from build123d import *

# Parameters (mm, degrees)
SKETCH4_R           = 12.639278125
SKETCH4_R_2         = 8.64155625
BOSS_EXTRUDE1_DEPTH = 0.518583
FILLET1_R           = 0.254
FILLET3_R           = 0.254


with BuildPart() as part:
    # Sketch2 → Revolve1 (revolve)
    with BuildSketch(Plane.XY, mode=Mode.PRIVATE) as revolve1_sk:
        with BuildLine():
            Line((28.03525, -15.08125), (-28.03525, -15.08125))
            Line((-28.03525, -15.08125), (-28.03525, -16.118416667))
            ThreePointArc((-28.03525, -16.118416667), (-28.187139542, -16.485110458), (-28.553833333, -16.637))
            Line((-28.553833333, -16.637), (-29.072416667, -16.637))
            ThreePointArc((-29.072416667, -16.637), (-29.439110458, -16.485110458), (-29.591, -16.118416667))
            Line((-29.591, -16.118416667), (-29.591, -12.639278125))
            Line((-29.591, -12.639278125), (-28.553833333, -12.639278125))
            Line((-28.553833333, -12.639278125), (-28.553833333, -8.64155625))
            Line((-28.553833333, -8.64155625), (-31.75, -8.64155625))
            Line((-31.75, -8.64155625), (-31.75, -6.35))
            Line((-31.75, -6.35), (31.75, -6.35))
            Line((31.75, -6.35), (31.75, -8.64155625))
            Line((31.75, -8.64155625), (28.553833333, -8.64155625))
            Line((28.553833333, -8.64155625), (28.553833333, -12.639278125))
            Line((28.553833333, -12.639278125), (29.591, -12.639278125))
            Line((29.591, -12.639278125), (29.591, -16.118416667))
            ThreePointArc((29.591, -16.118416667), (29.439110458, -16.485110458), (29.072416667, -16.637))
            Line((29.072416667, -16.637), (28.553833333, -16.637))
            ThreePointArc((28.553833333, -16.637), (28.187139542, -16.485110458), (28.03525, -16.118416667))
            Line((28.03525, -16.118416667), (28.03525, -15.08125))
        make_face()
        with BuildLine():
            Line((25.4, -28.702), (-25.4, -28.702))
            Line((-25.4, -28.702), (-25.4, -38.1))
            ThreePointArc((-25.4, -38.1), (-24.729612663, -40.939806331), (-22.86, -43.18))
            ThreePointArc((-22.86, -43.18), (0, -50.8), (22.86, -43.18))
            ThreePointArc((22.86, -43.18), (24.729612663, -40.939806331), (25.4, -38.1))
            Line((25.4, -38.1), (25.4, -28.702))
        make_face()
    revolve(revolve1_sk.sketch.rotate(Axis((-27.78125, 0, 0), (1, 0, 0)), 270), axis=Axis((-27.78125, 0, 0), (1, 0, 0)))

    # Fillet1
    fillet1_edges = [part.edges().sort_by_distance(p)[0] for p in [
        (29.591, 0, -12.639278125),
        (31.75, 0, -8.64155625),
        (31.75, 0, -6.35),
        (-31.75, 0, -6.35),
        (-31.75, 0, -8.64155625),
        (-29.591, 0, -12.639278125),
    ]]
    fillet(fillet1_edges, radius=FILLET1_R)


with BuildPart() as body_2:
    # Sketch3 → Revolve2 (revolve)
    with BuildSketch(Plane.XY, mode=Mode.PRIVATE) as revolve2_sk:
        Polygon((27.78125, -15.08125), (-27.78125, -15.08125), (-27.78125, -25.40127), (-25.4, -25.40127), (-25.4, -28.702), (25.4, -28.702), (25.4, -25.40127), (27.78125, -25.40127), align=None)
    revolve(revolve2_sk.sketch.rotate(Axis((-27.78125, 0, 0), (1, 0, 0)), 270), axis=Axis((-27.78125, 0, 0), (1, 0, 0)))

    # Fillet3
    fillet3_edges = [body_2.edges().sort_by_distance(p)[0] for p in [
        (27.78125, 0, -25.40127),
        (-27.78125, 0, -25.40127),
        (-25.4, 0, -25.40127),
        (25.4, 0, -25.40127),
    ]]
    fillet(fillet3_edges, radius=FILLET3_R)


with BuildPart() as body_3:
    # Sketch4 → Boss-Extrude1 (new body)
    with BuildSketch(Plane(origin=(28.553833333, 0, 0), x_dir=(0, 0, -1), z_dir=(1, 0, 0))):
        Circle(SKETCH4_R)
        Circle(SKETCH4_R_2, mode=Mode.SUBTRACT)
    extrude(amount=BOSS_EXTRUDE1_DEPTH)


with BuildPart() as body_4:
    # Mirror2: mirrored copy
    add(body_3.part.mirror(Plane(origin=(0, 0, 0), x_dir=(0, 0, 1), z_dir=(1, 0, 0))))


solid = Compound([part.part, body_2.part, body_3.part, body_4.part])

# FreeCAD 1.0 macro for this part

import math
import FreeCAD as App
import Part
import Sketcher
from FreeCAD import Vector
Q = App.Units.Quantity


def edges_at(feature, points):
    """Names of the edges that pass closest to the given points."""
    edges = feature.Shape.Edges
    near = lambda p: min(range(len(edges)), key=lambda i: edges[i].distToShape(Part.Vertex(*p))[0])
    return sorted({f"Edge{near(p) + 1}" for p in points})


def add_polygon(sketch, points):
    """Adds a closed chain of lines whose ends are joined by coincident constraints."""
    first, n = sketch.GeometryCount, len(points)
    for a, b in zip(points, points[1:] + points[:1]):
        sketch.addGeometry(Part.LineSegment(App.Vector(*a, 0), App.Vector(*b, 0)), False)
    for i in range(n):
        sketch.addConstraint(Sketcher.Constraint("Coincident", first + i, 2, first + (i + 1) % n, 1))

doc = App.newDocument("Part")
body = doc.addObject("PartDesign::Body", "Body")
body.AllowCompound = True

# Sketch on XY plane
sketch1 = body.newObject("Sketcher::SketchObject", "Sketch")
sketch1.AttachmentSupport = (doc.getObject("XY_Plane"), [""])
sketch1.MapMode = "FlatFace"
sketch1.addGeometry([
    Part.LineSegment(Vector(-28, -15.1, 0), Vector(28, -15.1, 0)),  # 0
    Part.LineSegment(Vector(28, -15.1, 0), Vector(28, -16.1, 0)),  # 1
    Part.ArcOfCircle(Part.Circle(Vector(28.6, -16.1, 0), Vector(0, 0, 1), 0.5), math.radians(-180), math.radians(-90)),  # 2
    Part.LineSegment(Vector(28.6, -16.6, 0), Vector(29.1, -16.6, 0)),  # 3
    Part.ArcOfCircle(Part.Circle(Vector(29.1, -16.1, 0), Vector(0, 0, 1), 0.5), math.radians(-90), math.radians(0)),  # 4
    Part.LineSegment(Vector(29.6, -16.1, 0), Vector(29.6, -12.6, 0)),  # 5
    Part.LineSegment(Vector(29.6, -12.6, 0), Vector(28.6, -12.6, 0)),  # 6
    Part.LineSegment(Vector(28.6, -12.6, 0), Vector(28.6, -8.6, 0)),  # 7
    Part.LineSegment(Vector(28.6, -8.6, 0), Vector(31.8, -8.6, 0)),  # 8
    Part.LineSegment(Vector(31.8, -8.6, 0), Vector(31.8, -6.3, 0)),  # 9
    Part.LineSegment(Vector(31.8, -6.3, 0), Vector(-31.8, -6.3, 0)),  # 10
    Part.LineSegment(Vector(-31.8, -6.3, 0), Vector(-31.8, -8.6, 0)),  # 11
    Part.LineSegment(Vector(-31.8, -8.6, 0), Vector(-28.6, -8.6, 0)),  # 12
    Part.LineSegment(Vector(-28.6, -8.6, 0), Vector(-28.6, -12.6, 0)),  # 13
    Part.LineSegment(Vector(-28.6, -12.6, 0), Vector(-29.6, -12.6, 0)),  # 14
    Part.LineSegment(Vector(-29.6, -12.6, 0), Vector(-29.6, -16.1, 0)),  # 15
    Part.ArcOfCircle(Part.Circle(Vector(-29.1, -16.1, 0), Vector(0, 0, 1), 0.5), math.radians(-180), math.radians(-90)),  # 16
    Part.LineSegment(Vector(-29.1, -16.6, 0), Vector(-28.6, -16.6, 0)),  # 17
    Part.ArcOfCircle(Part.Circle(Vector(-28.6, -16.1, 0), Vector(0, 0, 1), 0.5), math.radians(-90), math.radians(0)),  # 18
    Part.LineSegment(Vector(-28, -16.1, 0), Vector(-28, -15.1, 0)),  # 19
    Part.LineSegment(Vector(25.4, -28.7, 0), Vector(-25.4, -28.7, 0)),  # 20
    Part.LineSegment(Vector(-25.4, -28.7, 0), Vector(-25.4, -38.1, 0)),  # 21
    Part.ArcOfCircle(Part.Circle(Vector(-19.1, -38.1, 0), Vector(0, 0, 1), 6.3), math.radians(180), math.radians(233)),  # 22
    Part.ArcOfCircle(Part.Circle(Vector(0, -12.7, 0), Vector(0, 0, 1), 38.1), math.radians(-127), math.radians(-53)),  # 23
    Part.ArcOfCircle(Part.Circle(Vector(19.1, -38.1, 0), Vector(0, 0, 1), 6.3), math.radians(-53), math.radians(0)),  # 24
    Part.LineSegment(Vector(25.4, -38.1, 0), Vector(25.4, -28.7, 0)),  # 25
], False)
sketch1.addConstraint([
    Sketcher.Constraint("Coincident", 0, 2, 1, 1),
    Sketcher.Constraint("Tangent", 1, 2, 2, 1),
    Sketcher.Constraint("Tangent", 2, 2, 3, 1),
    Sketcher.Constraint("Tangent", 3, 2, 4, 1),
    Sketcher.Constraint("Tangent", 4, 2, 5, 1),
    Sketcher.Constraint("Coincident", 5, 2, 6, 1),
    Sketcher.Constraint("Coincident", 6, 2, 7, 1),
    Sketcher.Constraint("Coincident", 7, 2, 8, 1),
    Sketcher.Constraint("Coincident", 8, 2, 9, 1),
    Sketcher.Constraint("Coincident", 9, 2, 10, 1),
    Sketcher.Constraint("Coincident", 10, 2, 11, 1),
    Sketcher.Constraint("Coincident", 11, 2, 12, 1),
    Sketcher.Constraint("Coincident", 12, 2, 13, 1),
    Sketcher.Constraint("Coincident", 13, 2, 14, 1),
    Sketcher.Constraint("Coincident", 14, 2, 15, 1),
    Sketcher.Constraint("Tangent", 15, 2, 16, 1),
    Sketcher.Constraint("Tangent", 16, 2, 17, 1),
    Sketcher.Constraint("Tangent", 17, 2, 18, 1),
    Sketcher.Constraint("Tangent", 18, 2, 19, 1),
    Sketcher.Constraint("Coincident", 19, 2, 0, 1),
    Sketcher.Constraint("Coincident", 20, 2, 21, 1),
    Sketcher.Constraint("Tangent", 21, 2, 22, 1),
    Sketcher.Constraint("Tangent", 22, 2, 23, 1),
    Sketcher.Constraint("Tangent", 23, 2, 24, 1),
    Sketcher.Constraint("Tangent", 24, 2, 25, 1),
    Sketcher.Constraint("Coincident", 25, 2, 20, 1),
    Sketcher.Constraint("Horizontal", 0),
    Sketcher.Constraint("Vertical", 1),
    Sketcher.Constraint("Horizontal", 3),
    Sketcher.Constraint("Vertical", 5),
    Sketcher.Constraint("Horizontal", 6),
    Sketcher.Constraint("Vertical", 7),
    Sketcher.Constraint("Horizontal", 8),
    Sketcher.Constraint("Vertical", 9),
    Sketcher.Constraint("Horizontal", 10),
    Sketcher.Constraint("Vertical", 11),
    Sketcher.Constraint("Horizontal", 12),
    Sketcher.Constraint("Vertical", 13),
    Sketcher.Constraint("Horizontal", 14),
    Sketcher.Constraint("Vertical", 15),
    Sketcher.Constraint("Horizontal", 17),
    Sketcher.Constraint("Vertical", 19),
    Sketcher.Constraint("Horizontal", 20),
    Sketcher.Constraint("Vertical", 21),
    Sketcher.Constraint("Vertical", 25),
    Sketcher.Constraint("Equal", 2, 4),
    Sketcher.Constraint("Equal", 4, 16),
    Sketcher.Constraint("Equal", 16, 18),
    Sketcher.Constraint("Equal", 22, 24),
    Sketcher.Constraint("Symmetric", 4, 3, 16, 3, -2),
    Sketcher.Constraint("Symmetric", 22, 3, 24, 3, -2),
    Sketcher.Constraint("Symmetric", 8, 2, 11, 2, -2),
    Sketcher.Constraint("Symmetric", 6, 2, 13, 2, -2),
    Sketcher.Constraint("Vertical", 2, 2, 6, 2),
    Sketcher.Constraint("Vertical", 18, 3, 12, 2),
    Sketcher.Constraint("Equal", 14, 1),
    Sketcher.Constraint("Radius", 23, Q("1.5 in")),
    Sketcher.Constraint("DistanceX", 20, 2, 20, 1, Q("2 in")),
    Sketcher.Constraint("Radius", 22, Q("0.25 in")),
    Sketcher.Constraint("DistanceX", 10, 2, 10, 1, Q("2.5 in")),
    Sketcher.Constraint("DistanceY", 21, 2, 21, 1, Q("0.37 in")),
    Sketcher.Constraint("DistanceY", 22, 3, -1, 1, Q("1.5 in")),
    Sketcher.Constraint("DistanceY", 9, 2, -1, 1, Q("0.25 in")),
    Sketcher.Constraint("DistanceX", 0, 1, 0, 2, Q("2.2075 in")),
    Sketcher.Constraint("DistanceY", 0, 2, -1, 1, Q("0.59375 in")),
    Sketcher.Constraint("DistanceY", 2, 2, -1, 1, Q("0.655 in")),
    Sketcher.Constraint("Radius", 2, 0.518583),
    Sketcher.Constraint("DistanceY", 5, 1, 5, 2, 3.479139),
    Sketcher.Constraint("DistanceY", 7, 1, 7, 2, 3.997722),
])
revolution = body.newObject("PartDesign::Revolution", "Revolution")
revolution.Profile = sketch1
revolution.ReferenceAxis = (sketch1, ["H_Axis"])
revolution.Angle = 360
doc.recompute()

fillet = body.newObject("PartDesign::Fillet", "Fillet")
fillet.Base = (revolution, edges_at(revolution, [
    (29.591, 0, -12.639),
    (31.75, 0, -8.642),
    (31.75, 0, -6.35),
    (-31.75, 0, -6.35),
    (-31.75, 0, -8.642),
    (-29.591, 0, -12.639),
]))
fillet.Radius = Q("0.01 in")
body2 = doc.addObject("PartDesign::Body", "Body001")

# Sketch on XY plane
sketch2 = body2.newObject("Sketcher::SketchObject", "Sketch001")
sketch2.AttachmentSupport = (doc.getObject("XY_Plane001"), [""])
sketch2.MapMode = "FlatFace"
add_polygon(sketch2, [(27.8, -15.1), (-27.8, -15.1), (-27.8, -25.4), (-25.4, -25.4), (-25.4, -28.7), (25.4, -28.7), (25.4, -25.4), (27.8, -25.4)])  # lines 0-7
sketch2.addConstraint([
    Sketcher.Constraint("Horizontal", 0),
    Sketcher.Constraint("Vertical", 1),
    Sketcher.Constraint("Horizontal", 2),
    Sketcher.Constraint("Vertical", 3),
    Sketcher.Constraint("Horizontal", 4),
    Sketcher.Constraint("Vertical", 5),
    Sketcher.Constraint("Horizontal", 6),
    Sketcher.Constraint("Vertical", 7),
    Sketcher.Constraint("Symmetric", 2, 2, 5, 2, -2),
    Sketcher.Constraint("Equal", 2, 6),
    Sketcher.Constraint("DistanceX", 4, 1, 4, 2, Q("2 in")),
    Sketcher.Constraint("DistanceX", 0, 2, 0, 1, Q("2.1875 in")),
    Sketcher.Constraint("DistanceY", 3, 2, -1, 1, Q("1.13 in")),
    Sketcher.Constraint("DistanceY", 1, 2, 1, 1, Q("0.4063 in")),
    Sketcher.Constraint("DistanceY", 0, 2, -1, 1, Q("0.59375 in")),
])
revolution2 = body2.newObject("PartDesign::Revolution", "Revolution001")
revolution2.Profile = sketch2
revolution2.ReferenceAxis = (sketch2, ["H_Axis"])
revolution2.Angle = 360
doc.recompute()

fillet2 = body2.newObject("PartDesign::Fillet", "Fillet001")
fillet2.Base = (revolution2, edges_at(revolution2, [
    (27.781, 0, -25.401),
    (-27.781, 0, -25.401),
    (-25.4, 0, -25.401),
    (25.4, 0, -25.401),
]))
fillet2.Radius = Q("0.01 in")
body3 = doc.addObject("PartDesign::Body", "Body002")

# Sketch on YZ plane
sketch3 = body3.newObject("Sketcher::SketchObject", "Sketch002")
sketch3.AttachmentSupport = (doc.getObject("YZ_Plane002"), [""])
sketch3.MapMode = "FlatFace"
sketch3.AttachmentOffset = App.Placement(Vector(0, 0, 28.553833), App.Rotation())
sketch3.addGeometry([
    Part.Circle(Vector(0, 0, 0), Vector(0, 0, 1), 13),
    Part.Circle(Vector(0, 0, 0), Vector(0, 0, 1), 9),
], False)
sketch3.addConstraint([
    Sketcher.Constraint("Coincident", 0, 3, -1, 1),
    Sketcher.Constraint("Coincident", 1, 3, -1, 1),
    Sketcher.Constraint("Diameter", 0, 25.278556),
    Sketcher.Constraint("Diameter", 1, 17.283113),
])
pad1 = body3.newObject("PartDesign::Pad", "Pad")
pad1.Profile = sketch3
pad1.Length = 0.518583
body4 = doc.addObject("PartDesign::Body", "Body003")
doc.recompute()

mirroring = doc.addObject("Part::Mirroring", "Mirroring")
mirroring.Source = body3
mirroring.Base = Vector(0, 0, 0)
mirroring.Normal = Vector(1, 0, 0)
body4.BaseFeature = mirroring
doc.recompute()
mirroring.Visibility = False

doc.recompute()
